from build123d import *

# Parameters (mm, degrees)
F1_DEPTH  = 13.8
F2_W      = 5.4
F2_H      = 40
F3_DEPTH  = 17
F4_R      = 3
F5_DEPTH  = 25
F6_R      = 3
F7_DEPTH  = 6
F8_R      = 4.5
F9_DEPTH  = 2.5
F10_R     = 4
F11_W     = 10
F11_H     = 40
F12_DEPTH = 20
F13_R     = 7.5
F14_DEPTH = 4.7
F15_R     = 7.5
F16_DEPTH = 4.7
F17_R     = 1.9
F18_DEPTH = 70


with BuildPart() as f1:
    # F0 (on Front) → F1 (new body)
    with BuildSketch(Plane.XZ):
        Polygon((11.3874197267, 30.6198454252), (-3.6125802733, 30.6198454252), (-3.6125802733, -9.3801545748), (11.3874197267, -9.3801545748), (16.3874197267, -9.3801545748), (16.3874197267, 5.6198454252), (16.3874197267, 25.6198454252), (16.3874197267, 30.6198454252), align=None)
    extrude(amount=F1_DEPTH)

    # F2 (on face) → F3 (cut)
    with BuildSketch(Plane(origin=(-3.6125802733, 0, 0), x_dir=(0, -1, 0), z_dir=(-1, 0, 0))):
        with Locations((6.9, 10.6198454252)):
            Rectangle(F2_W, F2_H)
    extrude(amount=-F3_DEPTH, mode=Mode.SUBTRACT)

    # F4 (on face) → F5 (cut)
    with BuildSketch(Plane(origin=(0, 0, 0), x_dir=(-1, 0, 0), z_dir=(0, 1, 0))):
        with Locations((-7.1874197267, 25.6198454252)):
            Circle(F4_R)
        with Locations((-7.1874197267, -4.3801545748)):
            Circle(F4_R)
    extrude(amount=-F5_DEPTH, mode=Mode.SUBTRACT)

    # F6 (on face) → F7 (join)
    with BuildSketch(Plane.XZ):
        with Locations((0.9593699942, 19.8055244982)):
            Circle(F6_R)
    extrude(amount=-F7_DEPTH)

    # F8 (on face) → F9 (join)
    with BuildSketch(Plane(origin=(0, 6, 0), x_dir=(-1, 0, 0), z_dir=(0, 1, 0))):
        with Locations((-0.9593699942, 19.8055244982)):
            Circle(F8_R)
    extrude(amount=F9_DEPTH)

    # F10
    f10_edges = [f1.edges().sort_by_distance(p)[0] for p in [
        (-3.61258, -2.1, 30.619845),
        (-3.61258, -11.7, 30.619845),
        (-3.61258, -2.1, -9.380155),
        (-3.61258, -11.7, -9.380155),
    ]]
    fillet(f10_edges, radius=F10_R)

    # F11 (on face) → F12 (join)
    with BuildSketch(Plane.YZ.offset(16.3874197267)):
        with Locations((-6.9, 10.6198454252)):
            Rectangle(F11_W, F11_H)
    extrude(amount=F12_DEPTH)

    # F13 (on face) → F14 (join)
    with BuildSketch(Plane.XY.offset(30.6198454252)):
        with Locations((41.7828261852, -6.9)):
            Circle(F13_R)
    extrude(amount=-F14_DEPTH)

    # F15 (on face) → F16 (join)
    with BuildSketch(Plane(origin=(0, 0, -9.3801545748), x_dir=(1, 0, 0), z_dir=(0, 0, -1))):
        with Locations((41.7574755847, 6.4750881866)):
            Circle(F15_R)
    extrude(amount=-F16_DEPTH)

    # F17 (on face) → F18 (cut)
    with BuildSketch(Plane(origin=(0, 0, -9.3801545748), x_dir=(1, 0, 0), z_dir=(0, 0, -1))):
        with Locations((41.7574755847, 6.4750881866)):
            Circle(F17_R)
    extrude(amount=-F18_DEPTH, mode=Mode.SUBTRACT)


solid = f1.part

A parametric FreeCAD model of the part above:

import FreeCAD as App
import Part
import Sketcher
Q = App.Units.Quantity


def edges_at(feature, points):
    """Names of the edges that pass closest to the given points."""
    edges = feature.Shape.Edges
    near = lambda p: min(range(len(edges)), key=lambda i: edges[i].distToShape(Part.Vertex(*p))[0])
    return sorted({f"Edge{near(p) + 1}" for p in points})

doc = App.newDocument("Part")
body = doc.addObject("PartDesign::Body", "Body")

sketch1 = body.newObject("Sketcher::SketchObject", "Sketch")
sketch1.AttachmentSupport = (doc.getObject("XZ_Plane"), [""])
sketch1.MapMode = "FlatFace"
sketch1.addGeometry([
    Part.LineSegment(App.Vector(-4, 31, 0), App.Vector(-4, -9, 0)),
    Part.LineSegment(App.Vector(-4, -9, 0), App.Vector(16, -9, 0)),
    Part.LineSegment(App.Vector(16, -9, 0), App.Vector(16, 31, 0)),
    Part.LineSegment(App.Vector(16, 31, 0), App.Vector(-4, 31, 0)),
], False)
sketch1.addConstraint([
    Sketcher.Constraint("Coincident", 0, 2, 1, 1),
    Sketcher.Constraint("Coincident", 1, 2, 2, 1),
    Sketcher.Constraint("Coincident", 2, 2, 3, 1),
    Sketcher.Constraint("Coincident", 3, 2, 0, 1),
    Sketcher.Constraint("Vertical", 0),
    Sketcher.Constraint("Horizontal", 1),
    Sketcher.Constraint("Vertical", 2),
    Sketcher.Constraint("Horizontal", 3),
    Sketcher.Constraint("DistanceX", 1, 1, 1, 2, Q("20 mm")),
    Sketcher.Constraint("DistanceY", 0, 2, 0, 1, Q("40 mm")),
    Sketcher.Constraint("DistanceX", 0, 2, -1, 1, Q("3.61258 mm")),
    Sketcher.Constraint("DistanceY", 0, 2, -1, 1, Q("9.380155 mm")),
])
pad1 = body.newObject("PartDesign::Pad", "Pad")
pad1.Profile = sketch1
pad1.Length = 13.8

sketch2 = body.newObject("Sketcher::SketchObject", "Sketch001")
sketch2.AttachmentSupport = (doc.getObject("YZ_Plane"), [""])
sketch2.MapMode = "FlatFace"
sketch2.AttachmentOffset = App.Placement(App.Vector(0, 0, -3.61258), App.Rotation())
sketch2.addGeometry([
    Part.LineSegment(App.Vector(-4, 31, 0), App.Vector(-4, -9, 0)),
    Part.LineSegment(App.Vector(-4, -9, 0), App.Vector(-10, -9, 0)),
    Part.LineSegment(App.Vector(-10, -9, 0), App.Vector(-10, 31, 0)),
    Part.LineSegment(App.Vector(-10, 31, 0), App.Vector(-4, 31, 0)),
], False)
sketch2.addConstraint([
    Sketcher.Constraint("Coincident", 0, 2, 1, 1),
    Sketcher.Constraint("Coincident", 1, 2, 2, 1),
    Sketcher.Constraint("Coincident", 2, 2, 3, 1),
    Sketcher.Constraint("Coincident", 3, 2, 0, 1),
    Sketcher.Constraint("Vertical", 0),
    Sketcher.Constraint("Horizontal", 1),
    Sketcher.Constraint("Vertical", 2),
    Sketcher.Constraint("Horizontal", 3),
    Sketcher.Constraint("DistanceY", 0, 2, 0, 1, Q("40 mm")),
    Sketcher.Constraint("DistanceX", 1, 2, 1, 1, Q("5.4 mm")),
    Sketcher.Constraint("DistanceX", 0, 2, -1, 1, Q("4.2 mm")),
    Sketcher.Constraint("DistanceY", 0, 2, -1, 1, Q("9.380155 mm")),
])
pocket1 = body.newObject("PartDesign::Pocket", "Pocket")
pocket1.Profile = sketch2
pocket1.Length = 17
pocket1.Reversed = True

sketch3 = body.newObject("Sketcher::SketchObject", "Sketch002")
sketch3.AttachmentSupport = (doc.getObject("XZ_Plane"), [""])
sketch3.MapMode = "FlatFace"
sketch3.addGeometry([
    Part.Circle(App.Vector(7.2, 25.6, 0), App.Vector(0, 0, 1), 3),
    Part.Circle(App.Vector(7.2, -4.4, 0), App.Vector(0, 0, 1), 3),
], False)
sketch3.addConstraint([
    Sketcher.Constraint("Equal", 0, 1),
    Sketcher.Constraint("Vertical", 0, 3, 1, 3),
    Sketcher.Constraint("Diameter", 0, Q("6 mm")),
    Sketcher.Constraint("DistanceY", 1, 3, 0, 3, Q("30 mm")),
    Sketcher.Constraint("DistanceX", -1, 1, 0, 3, Q("7.18742 mm")),
    Sketcher.Constraint("DistanceY", -1, 1, 0, 3, Q("25.619845 mm")),
])
pocket2 = body.newObject("PartDesign::Pocket", "Pocket001")
pocket2.Profile = sketch3
pocket2.Length = 25
pocket2.Reversed = True

sketch4 = body.newObject("Sketcher::SketchObject", "Sketch003")
sketch4.AttachmentSupport = (doc.getObject("XZ_Plane"), [""])
sketch4.MapMode = "FlatFace"
sketch4.addGeometry(Part.Circle(App.Vector(1, 19.8, 0), App.Vector(0, 0, 1), 3), False)
sketch4.addConstraint([
    Sketcher.Constraint("Diameter", 0, Q("6 mm")),
    Sketcher.Constraint("DistanceX", -1, 1, 0, 3, Q("0.95937 mm")),
    Sketcher.Constraint("DistanceY", -1, 1, 0, 3, Q("19.805524 mm")),
])
pad2 = body.newObject("PartDesign::Pad", "Pad001")
pad2.Profile = sketch4
pad2.Length = 6
pad2.Reversed = True

sketch5 = body.newObject("Sketcher::SketchObject", "Sketch004")
sketch5.AttachmentSupport = (doc.getObject("XZ_Plane"), [""])
sketch5.MapMode = "FlatFace"
sketch5.AttachmentOffset = App.Placement(App.Vector(0, 0, -6), App.Rotation())
sketch5.addGeometry(Part.Circle(App.Vector(1, 19.8, 0), App.Vector(0, 0, 1), 4.5), False)
sketch5.addConstraint([
    Sketcher.Constraint("Diameter", 0, Q("9 mm")),
    Sketcher.Constraint("DistanceX", -1, 1, 0, 3, Q("0.95937 mm")),
    Sketcher.Constraint("DistanceY", -1, 1, 0, 3, Q("19.805524 mm")),
])
pad3 = body.newObject("PartDesign::Pad", "Pad002")
pad3.Profile = sketch5
pad3.Length = 2.5
pad3.Reversed = True
doc.recompute()

fillet = body.newObject("PartDesign::Fillet", "Fillet")
fillet.Base = (pad3, edges_at(pad3, [
    (-3.613, -2.1, 30.62),
    (-3.613, -11.7, 30.62),
    (-3.613, -2.1, -9.38),
    (-3.613, -11.7, -9.38),
]))
fillet.Radius = 4

sketch6 = body.newObject("Sketcher::SketchObject", "Sketch005")
sketch6.AttachmentSupport = (doc.getObject("YZ_Plane"), [""])
sketch6.MapMode = "FlatFace"
sketch6.AttachmentOffset = App.Placement(App.Vector(0, 0, 16.38742), App.Rotation())
sketch6.addGeometry([
    Part.LineSegment(App.Vector(-12, 31, 0), App.Vector(-12, -9, 0)),
    Part.LineSegment(App.Vector(-12, -9, 0), App.Vector(-2, -9, 0)),
    Part.LineSegment(App.Vector(-2, -9, 0), App.Vector(-2, 31, 0)),
    Part.LineSegment(App.Vector(-2, 31, 0), App.Vector(-12, 31, 0)),
], False)
sketch6.addConstraint([
    Sketcher.Constraint("Coincident", 0, 2, 1, 1),
    Sketcher.Constraint("Coincident", 1, 2, 2, 1),
    Sketcher.Constraint("Coincident", 2, 2, 3, 1),
    Sketcher.Constraint("Coincident", 3, 2, 0, 1),
    Sketcher.Constraint("Vertical", 0),
    Sketcher.Constraint("Horizontal", 1),
    Sketcher.Constraint("Vertical", 2),
    Sketcher.Constraint("Horizontal", 3),
    Sketcher.Constraint("DistanceX", 1, 1, 1, 2, Q("10 mm")),
    Sketcher.Constraint("DistanceY", 0, 2, 0, 1, Q("40 mm")),
    Sketcher.Constraint("DistanceX", 0, 2, -1, 1, Q("11.9 mm")),
    Sketcher.Constraint("DistanceY", 0, 2, -1, 1, Q("9.380155 mm")),
])
pad4 = body.newObject("PartDesign::Pad", "Pad003")
pad4.Profile = sketch6
pad4.Length = 20

sketch7 = body.newObject("Sketcher::SketchObject", "Sketch006")
sketch7.AttachmentSupport = (doc.getObject("XY_Plane"), [""])
sketch7.MapMode = "FlatFace"
sketch7.AttachmentOffset = App.Placement(App.Vector(0, 0, 30.619845), App.Rotation())
sketch7.addGeometry(Part.Circle(App.Vector(42, -7, 0), App.Vector(0, 0, 1), 8), False)
sketch7.addConstraint([
    Sketcher.Constraint("Diameter", 0, Q("15 mm")),
    Sketcher.Constraint("DistanceY", 0, 3, -1, 1, Q("6.9 mm")),
    Sketcher.Constraint("DistanceX", -1, 1, 0, 3, Q("41.782826 mm")),
])
pad5 = body.newObject("PartDesign::Pad", "Pad004")
pad5.Profile = sketch7
pad5.Length = 4.7
pad5.Reversed = True

sketch8 = body.newObject("Sketcher::SketchObject", "Sketch007")
sketch8.AttachmentSupport = (doc.getObject("XY_Plane"), [""])
sketch8.MapMode = "FlatFace"
sketch8.AttachmentOffset = App.Placement(App.Vector(0, 0, -9.380155), App.Rotation())
sketch8.addGeometry(Part.Circle(App.Vector(42, -6, 0), App.Vector(0, 0, 1), 8), False)
sketch8.addConstraint([
    Sketcher.Constraint("Diameter", 0, Q("15 mm")),
    Sketcher.Constraint("DistanceY", 0, 3, -1, 1, Q("6.475088 mm")),
    Sketcher.Constraint("DistanceX", -1, 1, 0, 3, Q("41.757476 mm")),
])
pad6 = body.newObject("PartDesign::Pad", "Pad005")
pad6.Profile = sketch8
pad6.Length = 4.7

sketch9 = body.newObject("Sketcher::SketchObject", "Sketch008")
sketch9.AttachmentSupport = (doc.getObject("XY_Plane"), [""])
sketch9.MapMode = "FlatFace"
sketch9.AttachmentOffset = App.Placement(App.Vector(0, 0, -9.380155), App.Rotation())
sketch9.addGeometry(Part.Circle(App.Vector(41.8, -6.5, 0), App.Vector(0, 0, 1), 1.9), False)
sketch9.addConstraint([
    Sketcher.Constraint("Diameter", 0, Q("3.8 mm")),
    Sketcher.Constraint("DistanceY", 0, 3, -1, 1, Q("6.475088 mm")),
    Sketcher.Constraint("DistanceX", -1, 1, 0, 3, Q("41.757476 mm")),
])
pocket3 = body.newObject("PartDesign::Pocket", "Pocket002")
pocket3.Profile = sketch9
pocket3.Length = 70
pocket3.Reversed = True

doc.recompute()
